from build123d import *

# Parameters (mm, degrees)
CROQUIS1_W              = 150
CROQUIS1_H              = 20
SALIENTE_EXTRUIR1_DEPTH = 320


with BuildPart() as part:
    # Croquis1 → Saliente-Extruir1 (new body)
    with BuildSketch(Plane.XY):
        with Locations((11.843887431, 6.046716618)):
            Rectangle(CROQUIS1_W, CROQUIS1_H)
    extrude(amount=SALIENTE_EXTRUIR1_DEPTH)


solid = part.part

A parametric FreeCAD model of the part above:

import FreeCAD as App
import Part
import Sketcher
Q = App.Units.Quantity


def add_polygon(sketch, points):
    """Adds a closed chain of lines whose ends are joined by coincident constraints."""
    first, n = sketch.GeometryCount, len(points)
    for a, b in zip(points, points[1:] + points[:1]):
        sketch.addGeometry(Part.LineSegment(App.Vector(*a, 0), App.Vector(*b, 0)), False)
    for i in range(n):
        sketch.addConstraint(Sketcher.Constraint("Coincident", first + i, 2, first + (i + 1) % n, 1))

doc = App.newDocument("Part")
params = doc.addObject("Spreadsheet::Sheet", "Params")
for row, (alias, value) in enumerate([
    ("sketch1_width", "150 mm"),
    ("sketch1_height", "20 mm"),
    ("pad1_length", "320 mm"),
], start=1):
    params.set(f"A{row}", alias)
    params.set(f"B{row}", "=" + value)
    params.setAlias(f"B{row}", alias)

body = doc.addObject("PartDesign::Body", "Body")

# Sketch on XY plane
sketch1 = doc.addObject("Sketcher::SketchObject", "Sketch")
body.addObject(sketch1)
sketch1.AttachmentSupport = (doc.XY_Plane, [""])
sketch1.MapMode = "FlatFace"
add_polygon(sketch1, [(-63.156113, 16.046717), (-63.156113, -3.953283), (86.843887, -3.953283), (86.843887, 16.046717)])  # lines 0-3
sketch1.addConstraint([
    Sketcher.Constraint("Vertical", 0),
    Sketcher.Constraint("Horizontal", 1),
    Sketcher.Constraint("Vertical", 2),
    Sketcher.Constraint("Horizontal", 3),
    Sketcher.Constraint("DistanceX", 1, 1, 1, 2, Q("150 mm")),
    Sketcher.Constraint("DistanceY", 0, 2, 0, 1, Q("20 mm")),
    Sketcher.Constraint("DistanceX", 0, 2, -1, 1, Q("63.156113 mm")),
    Sketcher.Constraint("DistanceY", 0, 2, -1, 1, Q("3.953283 mm")),
])
sketch1.setExpression("Constraints[8]", "Params.sketch1_width")
sketch1.setExpression("Constraints[9]", "Params.sketch1_height")
pad1 = doc.addObject("PartDesign::Pad", "Pad")
body.addObject(pad1)
pad1.Profile = sketch1
pad1.setExpression("Length", "Params.pad1_length")

doc.recompute()
